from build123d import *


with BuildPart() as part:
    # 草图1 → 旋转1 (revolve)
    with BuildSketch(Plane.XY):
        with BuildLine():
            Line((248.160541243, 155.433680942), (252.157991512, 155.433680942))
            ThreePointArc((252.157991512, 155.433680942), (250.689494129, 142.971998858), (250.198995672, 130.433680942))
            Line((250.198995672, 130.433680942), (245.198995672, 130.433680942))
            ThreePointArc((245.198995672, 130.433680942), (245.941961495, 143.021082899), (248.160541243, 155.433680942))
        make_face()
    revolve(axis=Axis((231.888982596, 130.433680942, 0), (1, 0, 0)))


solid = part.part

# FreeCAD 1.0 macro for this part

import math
import FreeCAD as App
import Part
import Sketcher
from FreeCAD import Vector
Q = App.Units.Quantity

doc = App.newDocument("Part")
params = doc.addObject("Spreadsheet::Sheet", "Params")
for row, (alias, value) in enumerate([
    ("sketch1_radius", "107 mm"),
    ("sketch1_radius2", "160.5 mm"),
    ("sketch1_width", "5 mm"),
    ("revolution_angle", "360 deg"),
], start=1):
    params.set(f"A{row}", alias)
    params.set(f"B{row}", "=" + value)
    params.setAlias(f"B{row}", alias)

body = doc.addObject("PartDesign::Body", "Body")

# Sketch on XY plane
sketch1 = body.newObject("Sketcher::SketchObject", "Sketch")
sketch1.AttachmentSupport = (doc.getObject("XY_Plane"), [""])
sketch1.MapMode = "FlatFace"
sketch1.addGeometry([
    Part.LineSegment(Vector(252.2, 155.4, 0), Vector(248.2, 155.4, 0)),
    Part.ArcOfCircle(Part.Circle(Vector(352.2, 130.4, 0), Vector(0, 0, 1), 107), math.radians(166.49), math.radians(180)),
    Part.LineSegment(Vector(245.2, 130.4, 0), Vector(250.2, 130.4, 0)),
    Part.ArcOfCircle(Part.Circle(Vector(410.7, 130.4, 0), Vector(0, 0, 1), 160.5), math.radians(171.04), math.radians(180)),
], False)
sketch1.addGeometry(Part.LineSegment(Vector(245.2, 130.4, 0), Vector(410.7, 130.4, 0)), True)  # axis
sketch1.addConstraint([
    Sketcher.Constraint("Coincident", 0, 2, 1, 1),
    Sketcher.Constraint("Coincident", 1, 2, 2, 1),
    Sketcher.Constraint("Coincident", 2, 2, 3, 2),
    Sketcher.Constraint("Coincident", 3, 1, 0, 1),
    Sketcher.Constraint("Horizontal", 0),
    Sketcher.Constraint("Horizontal", 2),
    Sketcher.Constraint("Horizontal", 4),
    Sketcher.Constraint("Coincident", 4, 1, 1, 2),
    Sketcher.Constraint("Coincident", 4, 2, 3, 3),
    Sketcher.Constraint("Horizontal", 1, 3, 3, 3),
    Sketcher.Constraint("Radius", 1, Q("107 mm")),
    Sketcher.Constraint("Radius", 3, Q("160.5 mm")),
    Sketcher.Constraint("DistanceX", 2, 1, 2, 2, Q("5 mm")),
    Sketcher.Constraint("DistanceY", 1, 3, 0, 2, Q("25 mm")),
    Sketcher.Constraint("DistanceY", -1, 1, 1, 3, Q("130.433681 mm")),
    Sketcher.Constraint("DistanceX", -1, 1, 0, 2, Q("248.160541 mm")),
])
sketch1.setExpression("Constraints[10]", "Params.sketch1_radius")
sketch1.setExpression("Constraints[11]", "Params.sketch1_radius2")
sketch1.setExpression("Constraints[12]", "Params.sketch1_width")
revolution = body.newObject("PartDesign::Revolution", "Revolution")
revolution.Profile = sketch1
revolution.ReferenceAxis = (sketch1, ["Axis0"])
revolution.setExpression("Angle", "Params.revolution_angle")

doc.recompute()
